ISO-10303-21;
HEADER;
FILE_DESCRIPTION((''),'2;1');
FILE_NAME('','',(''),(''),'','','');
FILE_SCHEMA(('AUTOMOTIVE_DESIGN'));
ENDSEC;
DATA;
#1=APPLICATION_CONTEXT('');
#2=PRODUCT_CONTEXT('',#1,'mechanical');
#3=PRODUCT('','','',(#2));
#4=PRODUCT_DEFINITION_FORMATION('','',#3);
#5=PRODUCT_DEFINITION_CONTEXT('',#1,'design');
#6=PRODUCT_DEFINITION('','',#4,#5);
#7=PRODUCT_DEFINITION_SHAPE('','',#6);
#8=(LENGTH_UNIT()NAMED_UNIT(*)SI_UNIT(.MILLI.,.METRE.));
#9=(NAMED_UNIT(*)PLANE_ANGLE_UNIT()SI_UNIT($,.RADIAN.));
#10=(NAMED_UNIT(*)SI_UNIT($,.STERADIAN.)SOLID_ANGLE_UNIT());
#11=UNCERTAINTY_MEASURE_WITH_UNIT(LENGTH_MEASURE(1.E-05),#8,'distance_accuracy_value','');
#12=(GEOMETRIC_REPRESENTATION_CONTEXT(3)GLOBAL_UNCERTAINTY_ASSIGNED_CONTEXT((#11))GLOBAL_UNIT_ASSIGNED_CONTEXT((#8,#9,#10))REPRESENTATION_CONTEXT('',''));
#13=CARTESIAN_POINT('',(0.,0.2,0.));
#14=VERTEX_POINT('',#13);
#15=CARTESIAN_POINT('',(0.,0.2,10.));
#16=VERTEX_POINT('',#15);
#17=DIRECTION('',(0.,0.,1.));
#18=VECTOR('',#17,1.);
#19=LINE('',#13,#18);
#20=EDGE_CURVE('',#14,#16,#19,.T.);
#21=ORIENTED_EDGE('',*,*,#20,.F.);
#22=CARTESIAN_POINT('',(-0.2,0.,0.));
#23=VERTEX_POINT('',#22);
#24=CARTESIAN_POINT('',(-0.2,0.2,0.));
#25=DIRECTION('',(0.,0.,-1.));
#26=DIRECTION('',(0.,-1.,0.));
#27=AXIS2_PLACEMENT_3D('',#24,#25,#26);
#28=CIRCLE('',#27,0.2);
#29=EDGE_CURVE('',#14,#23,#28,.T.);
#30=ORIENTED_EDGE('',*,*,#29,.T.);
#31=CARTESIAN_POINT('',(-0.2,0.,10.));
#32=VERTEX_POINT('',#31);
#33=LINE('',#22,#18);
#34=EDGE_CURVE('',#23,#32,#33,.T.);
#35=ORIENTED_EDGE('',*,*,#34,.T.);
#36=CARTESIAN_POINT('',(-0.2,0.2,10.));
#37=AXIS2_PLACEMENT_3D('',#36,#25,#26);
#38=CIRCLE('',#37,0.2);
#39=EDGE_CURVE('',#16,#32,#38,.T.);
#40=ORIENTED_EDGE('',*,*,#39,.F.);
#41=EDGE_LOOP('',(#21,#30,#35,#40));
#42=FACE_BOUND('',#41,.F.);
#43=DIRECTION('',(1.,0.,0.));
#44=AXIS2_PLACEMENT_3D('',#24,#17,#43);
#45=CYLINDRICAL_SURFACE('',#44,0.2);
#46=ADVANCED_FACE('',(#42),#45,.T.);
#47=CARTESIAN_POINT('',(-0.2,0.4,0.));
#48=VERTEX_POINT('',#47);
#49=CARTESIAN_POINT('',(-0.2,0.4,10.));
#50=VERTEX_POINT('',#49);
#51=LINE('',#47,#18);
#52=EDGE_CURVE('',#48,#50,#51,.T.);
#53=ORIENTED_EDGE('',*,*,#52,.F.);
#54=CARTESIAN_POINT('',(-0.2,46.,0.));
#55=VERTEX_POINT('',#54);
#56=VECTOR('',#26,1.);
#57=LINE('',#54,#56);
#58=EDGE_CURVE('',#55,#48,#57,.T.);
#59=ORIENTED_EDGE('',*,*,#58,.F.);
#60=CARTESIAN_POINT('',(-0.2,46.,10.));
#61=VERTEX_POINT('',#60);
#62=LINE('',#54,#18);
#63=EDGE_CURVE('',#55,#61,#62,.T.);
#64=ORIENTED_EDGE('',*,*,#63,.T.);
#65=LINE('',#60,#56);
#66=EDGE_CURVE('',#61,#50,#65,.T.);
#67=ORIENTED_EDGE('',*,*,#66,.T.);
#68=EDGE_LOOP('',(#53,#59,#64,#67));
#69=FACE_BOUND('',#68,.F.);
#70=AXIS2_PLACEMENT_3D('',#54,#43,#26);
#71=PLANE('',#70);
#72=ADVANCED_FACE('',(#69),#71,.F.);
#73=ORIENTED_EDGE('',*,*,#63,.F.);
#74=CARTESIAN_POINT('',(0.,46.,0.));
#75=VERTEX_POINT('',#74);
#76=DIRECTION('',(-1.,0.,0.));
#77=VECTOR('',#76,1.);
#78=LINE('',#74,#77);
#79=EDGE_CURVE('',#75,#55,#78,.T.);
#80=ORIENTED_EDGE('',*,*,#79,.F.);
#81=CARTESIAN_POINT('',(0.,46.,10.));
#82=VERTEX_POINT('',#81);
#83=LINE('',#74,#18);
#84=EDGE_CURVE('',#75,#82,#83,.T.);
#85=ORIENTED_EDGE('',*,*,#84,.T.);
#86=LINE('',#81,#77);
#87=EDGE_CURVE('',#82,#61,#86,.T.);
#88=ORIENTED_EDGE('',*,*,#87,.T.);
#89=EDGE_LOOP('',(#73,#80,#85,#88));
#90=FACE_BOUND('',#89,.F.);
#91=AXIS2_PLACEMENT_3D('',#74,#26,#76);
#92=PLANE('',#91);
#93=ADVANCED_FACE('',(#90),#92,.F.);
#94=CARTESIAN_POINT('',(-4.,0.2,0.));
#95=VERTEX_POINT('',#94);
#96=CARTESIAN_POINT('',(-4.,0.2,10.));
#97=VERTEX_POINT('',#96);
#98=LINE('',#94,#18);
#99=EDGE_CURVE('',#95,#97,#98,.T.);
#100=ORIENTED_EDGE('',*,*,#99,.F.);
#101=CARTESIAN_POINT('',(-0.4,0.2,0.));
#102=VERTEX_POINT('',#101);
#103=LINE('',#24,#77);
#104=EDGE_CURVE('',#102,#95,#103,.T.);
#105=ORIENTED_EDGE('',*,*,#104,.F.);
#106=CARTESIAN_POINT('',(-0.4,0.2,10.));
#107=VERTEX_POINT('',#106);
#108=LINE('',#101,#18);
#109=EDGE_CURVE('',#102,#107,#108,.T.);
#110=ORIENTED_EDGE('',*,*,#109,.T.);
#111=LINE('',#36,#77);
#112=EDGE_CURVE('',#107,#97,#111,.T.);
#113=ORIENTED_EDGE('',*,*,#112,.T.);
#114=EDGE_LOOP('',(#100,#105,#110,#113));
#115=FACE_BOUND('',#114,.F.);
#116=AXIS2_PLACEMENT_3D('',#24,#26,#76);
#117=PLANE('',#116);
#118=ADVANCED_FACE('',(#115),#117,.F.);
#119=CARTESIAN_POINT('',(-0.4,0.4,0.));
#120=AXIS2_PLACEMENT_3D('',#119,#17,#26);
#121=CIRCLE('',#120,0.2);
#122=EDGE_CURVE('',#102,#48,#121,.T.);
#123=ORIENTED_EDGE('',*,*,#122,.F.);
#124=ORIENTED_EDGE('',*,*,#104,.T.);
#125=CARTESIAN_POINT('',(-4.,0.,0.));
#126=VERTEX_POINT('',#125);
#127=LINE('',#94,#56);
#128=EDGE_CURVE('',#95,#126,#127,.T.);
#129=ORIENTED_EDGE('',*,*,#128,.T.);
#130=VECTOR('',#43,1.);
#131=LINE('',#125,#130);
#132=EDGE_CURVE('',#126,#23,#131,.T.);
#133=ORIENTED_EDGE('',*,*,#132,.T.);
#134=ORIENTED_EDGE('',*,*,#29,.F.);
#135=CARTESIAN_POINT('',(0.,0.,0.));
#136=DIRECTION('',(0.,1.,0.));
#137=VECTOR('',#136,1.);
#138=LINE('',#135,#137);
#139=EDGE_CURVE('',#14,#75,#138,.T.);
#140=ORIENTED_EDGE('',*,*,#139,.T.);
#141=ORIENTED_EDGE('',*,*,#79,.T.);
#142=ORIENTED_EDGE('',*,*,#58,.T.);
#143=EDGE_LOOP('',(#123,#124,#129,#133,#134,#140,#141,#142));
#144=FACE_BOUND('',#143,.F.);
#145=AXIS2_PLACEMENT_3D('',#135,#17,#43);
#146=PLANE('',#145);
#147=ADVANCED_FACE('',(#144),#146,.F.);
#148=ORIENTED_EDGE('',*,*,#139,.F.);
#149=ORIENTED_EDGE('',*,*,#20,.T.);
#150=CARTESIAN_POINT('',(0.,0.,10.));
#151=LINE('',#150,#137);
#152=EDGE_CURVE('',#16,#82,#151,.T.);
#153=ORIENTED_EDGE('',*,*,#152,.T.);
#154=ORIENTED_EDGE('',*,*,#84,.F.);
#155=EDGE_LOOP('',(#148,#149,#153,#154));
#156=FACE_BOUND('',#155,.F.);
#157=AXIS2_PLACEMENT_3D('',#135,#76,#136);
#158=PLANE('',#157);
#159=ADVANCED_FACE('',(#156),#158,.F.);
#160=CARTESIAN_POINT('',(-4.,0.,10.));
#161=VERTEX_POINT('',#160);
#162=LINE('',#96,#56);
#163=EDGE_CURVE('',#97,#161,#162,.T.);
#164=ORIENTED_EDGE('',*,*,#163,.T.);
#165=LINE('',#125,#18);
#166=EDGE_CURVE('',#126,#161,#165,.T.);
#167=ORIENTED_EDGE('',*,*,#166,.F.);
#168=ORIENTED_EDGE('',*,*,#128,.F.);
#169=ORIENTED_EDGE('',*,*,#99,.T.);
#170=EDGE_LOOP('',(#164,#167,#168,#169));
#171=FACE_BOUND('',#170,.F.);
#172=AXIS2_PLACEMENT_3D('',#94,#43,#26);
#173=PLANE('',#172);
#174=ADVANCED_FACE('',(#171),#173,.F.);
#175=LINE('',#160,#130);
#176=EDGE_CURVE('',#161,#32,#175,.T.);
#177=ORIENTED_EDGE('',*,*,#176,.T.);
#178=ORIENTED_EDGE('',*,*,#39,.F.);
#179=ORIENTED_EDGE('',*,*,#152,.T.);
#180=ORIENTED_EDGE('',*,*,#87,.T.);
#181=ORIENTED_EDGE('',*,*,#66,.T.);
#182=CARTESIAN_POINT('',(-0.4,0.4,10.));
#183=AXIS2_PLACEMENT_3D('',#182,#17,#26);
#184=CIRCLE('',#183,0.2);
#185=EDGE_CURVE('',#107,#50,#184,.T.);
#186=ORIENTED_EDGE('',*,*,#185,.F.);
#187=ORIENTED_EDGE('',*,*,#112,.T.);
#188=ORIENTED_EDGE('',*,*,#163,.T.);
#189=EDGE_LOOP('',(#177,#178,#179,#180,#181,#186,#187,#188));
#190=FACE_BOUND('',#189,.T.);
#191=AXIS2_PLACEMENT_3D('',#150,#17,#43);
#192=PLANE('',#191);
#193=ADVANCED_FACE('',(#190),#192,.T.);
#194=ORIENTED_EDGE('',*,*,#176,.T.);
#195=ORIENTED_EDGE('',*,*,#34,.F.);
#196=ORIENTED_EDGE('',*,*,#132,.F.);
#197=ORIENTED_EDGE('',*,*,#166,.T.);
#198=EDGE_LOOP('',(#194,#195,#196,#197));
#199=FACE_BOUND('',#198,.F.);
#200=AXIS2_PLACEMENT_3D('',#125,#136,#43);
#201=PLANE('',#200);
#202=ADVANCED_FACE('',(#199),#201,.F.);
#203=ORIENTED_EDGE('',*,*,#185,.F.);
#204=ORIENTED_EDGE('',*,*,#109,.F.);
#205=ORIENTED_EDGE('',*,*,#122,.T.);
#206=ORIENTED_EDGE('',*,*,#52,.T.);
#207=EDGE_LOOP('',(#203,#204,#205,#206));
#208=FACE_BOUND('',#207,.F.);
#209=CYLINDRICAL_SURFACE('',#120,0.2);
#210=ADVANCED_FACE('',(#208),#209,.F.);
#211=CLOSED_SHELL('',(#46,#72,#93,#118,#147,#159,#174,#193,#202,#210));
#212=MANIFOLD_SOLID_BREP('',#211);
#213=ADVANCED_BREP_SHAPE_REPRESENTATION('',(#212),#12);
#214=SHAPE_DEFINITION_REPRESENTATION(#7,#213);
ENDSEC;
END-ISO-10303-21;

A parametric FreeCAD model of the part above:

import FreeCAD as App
import Part
import Sketcher

V = App.Vector


def edges_at(feature, points):
    """Names of the edges that pass closest to the given points."""
    edges = feature.Shape.Edges
    near = lambda p: min(range(len(edges)), key=lambda i: edges[i].distToShape(Part.Vertex(*p))[0])
    return sorted({f"Edge{near(p) + 1}" for p in points})


def add_polygon(sketch, points):
    """Adds a closed chain of lines whose ends are joined by coincident constraints."""
    first, n = sketch.GeometryCount, len(points)
    for a, b in zip(points, points[1:] + points[:1]):
        sketch.addGeometry(Part.LineSegment(App.Vector(*a, 0), App.Vector(*b, 0)), False)
    for i in range(n):
        sketch.addConstraint(Sketcher.Constraint("Coincident", first + i, 2, first + (i + 1) % n, 1))

doc = App.newDocument("Part")
body = doc.addObject("PartDesign::Body", "Body")

sketch1 = doc.addObject("Sketcher::SketchObject", "Sketch")
body.addObject(sketch1)
sketch1.AttachmentSupport = (doc.XY_Plane, [""])
sketch1.MapMode = "FlatFace"
add_polygon(sketch1, [(-4, 0.2), (-4, 0), (0, 0), (0, 46), (-0.2, 46), (-0.2, 0.2)])
sketch1.addConstraint(Sketcher.Constraint("Vertical", 0))
sketch1.addConstraint(Sketcher.Constraint("Horizontal", 1))
sketch1.addConstraint(Sketcher.Constraint("Vertical", 2))
sketch1.addConstraint(Sketcher.Constraint("Horizontal", 3))
sketch1.addConstraint(Sketcher.Constraint("Vertical", 4))
sketch1.addConstraint(Sketcher.Constraint("Horizontal", 5))
sketch1.addConstraint(Sketcher.Constraint("Coincident", 1, 2, -1, 1))
sketch1.addConstraint(Sketcher.Constraint("Equal", 3, 0))
sketch1.addConstraint(Sketcher.Constraint("DistanceX", 1, 1, 1, 2, 4.0))
sketch1.addConstraint(Sketcher.Constraint("DistanceY", 2, 1, 2, 2, 46.0))
sketch1.addConstraint(Sketcher.Constraint("DistanceX", 3, 2, 3, 1, 0.2))
pad1 = doc.addObject("PartDesign::Pad", "Pad")
body.addObject(pad1)
pad1.Profile = sketch1
pad1.Length = 10
doc.recompute()

fillet = doc.addObject("PartDesign::Fillet", "Fillet")
body.addObject(fillet)
fillet.Base = (pad1, edges_at(pad1, [(0, 0, 5), (-0.2, 0.2, 5)]))
fillet.Radius = 0.2

doc.recompute()
